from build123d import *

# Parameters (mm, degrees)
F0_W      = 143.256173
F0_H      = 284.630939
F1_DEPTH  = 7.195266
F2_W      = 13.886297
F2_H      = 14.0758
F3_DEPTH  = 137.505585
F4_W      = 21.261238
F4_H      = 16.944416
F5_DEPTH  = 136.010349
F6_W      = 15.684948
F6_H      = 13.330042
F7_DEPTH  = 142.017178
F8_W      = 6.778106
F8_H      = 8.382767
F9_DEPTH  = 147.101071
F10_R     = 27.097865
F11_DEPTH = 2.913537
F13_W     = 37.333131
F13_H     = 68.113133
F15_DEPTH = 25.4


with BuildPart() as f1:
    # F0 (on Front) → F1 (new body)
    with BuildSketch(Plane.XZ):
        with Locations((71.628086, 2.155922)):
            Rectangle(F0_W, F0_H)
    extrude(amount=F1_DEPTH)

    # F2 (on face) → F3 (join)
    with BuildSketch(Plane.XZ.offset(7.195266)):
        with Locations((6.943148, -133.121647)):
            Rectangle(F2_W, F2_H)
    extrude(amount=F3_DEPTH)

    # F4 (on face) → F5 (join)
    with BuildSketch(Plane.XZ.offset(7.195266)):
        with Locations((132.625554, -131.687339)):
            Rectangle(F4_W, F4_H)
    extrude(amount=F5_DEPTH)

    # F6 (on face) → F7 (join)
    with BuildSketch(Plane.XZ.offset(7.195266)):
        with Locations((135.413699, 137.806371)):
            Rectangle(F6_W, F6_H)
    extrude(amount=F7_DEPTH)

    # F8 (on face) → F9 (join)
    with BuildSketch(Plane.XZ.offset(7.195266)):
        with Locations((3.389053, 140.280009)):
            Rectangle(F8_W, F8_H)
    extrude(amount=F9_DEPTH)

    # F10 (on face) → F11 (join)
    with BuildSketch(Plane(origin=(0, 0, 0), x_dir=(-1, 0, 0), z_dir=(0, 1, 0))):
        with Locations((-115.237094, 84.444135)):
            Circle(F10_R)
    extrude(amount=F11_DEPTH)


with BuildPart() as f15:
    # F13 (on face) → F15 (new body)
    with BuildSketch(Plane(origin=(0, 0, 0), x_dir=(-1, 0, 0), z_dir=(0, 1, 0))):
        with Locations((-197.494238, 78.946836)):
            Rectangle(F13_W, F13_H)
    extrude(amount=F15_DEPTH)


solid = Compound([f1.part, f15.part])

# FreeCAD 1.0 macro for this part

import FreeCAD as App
import Part
import Sketcher
from FreeCAD import Vector
Q = App.Units.Quantity


def add_polygon(sketch, points):
    """Adds a closed chain of lines whose ends are joined by coincident constraints."""
    first, n = sketch.GeometryCount, len(points)
    for a, b in zip(points, points[1:] + points[:1]):
        sketch.addGeometry(Part.LineSegment(App.Vector(*a, 0), App.Vector(*b, 0)), False)
    for i in range(n):
        sketch.addConstraint(Sketcher.Constraint("Coincident", first + i, 2, first + (i + 1) % n, 1))

doc = App.newDocument("Part")
body = doc.addObject("PartDesign::Body", "Body")

# Sketch on XZ plane
sketch1 = doc.addObject("Sketcher::SketchObject", "Sketch")
body.addObject(sketch1)
sketch1.AttachmentSupport = (doc.XZ_Plane, [""])
sketch1.MapMode = "FlatFace"
add_polygon(sketch1, [(0, 144.471392), (0, -140.159548), (143.256172, -140.159548), (143.256172, 144.471392)])  # lines 0-3
sketch1.addConstraint([
    Sketcher.Constraint("Vertical", 0),
    Sketcher.Constraint("Horizontal", 1),
    Sketcher.Constraint("Vertical", 2),
    Sketcher.Constraint("Horizontal", 3),
    Sketcher.Constraint("PointOnObject", 0, 2, -2),
    Sketcher.Constraint("DistanceY", 0, 2, 0, 1, Q("284.630939 mm")),
    Sketcher.Constraint("DistanceX", 1, 1, 1, 2, Q("143.256173 mm")),
    Sketcher.Constraint("DistanceY", -1, 1, 2, 2, Q("144.471392 mm")),
])
pad1 = doc.addObject("PartDesign::Pad", "Pad")
body.addObject(pad1)
pad1.Profile = sketch1
pad1.Length = 7.195266

# Sketch on XZ plane
sketch2 = doc.addObject("Sketcher::SketchObject", "Sketch001")
body.addObject(sketch2)
sketch2.AttachmentSupport = (doc.XZ_Plane, [""])
sketch2.MapMode = "FlatFace"
sketch2.AttachmentOffset = App.Placement(Vector(0, 0, 7.195266), App.Rotation())
add_polygon(sketch2, [(0, -126.083747), (0, -140.159547), (13.886297, -140.159547), (13.886297, -126.083747)])  # lines 0-3
sketch2.addConstraint([
    Sketcher.Constraint("Vertical", 0),
    Sketcher.Constraint("Horizontal", 1),
    Sketcher.Constraint("Vertical", 2),
    Sketcher.Constraint("Horizontal", 3),
    Sketcher.Constraint("PointOnObject", 0, 2, -2),
    Sketcher.Constraint("DistanceY", 0, 2, 0, 1, Q("14.0758 mm")),
    Sketcher.Constraint("DistanceX", 1, 1, 1, 2, Q("13.886297 mm")),
    Sketcher.Constraint("DistanceY", 0, 2, -1, 1, Q("140.159547 mm")),
])
pad2 = doc.addObject("PartDesign::Pad", "Pad001")
body.addObject(pad2)
pad2.Profile = sketch2
pad2.Length = 137.505585

# Sketch on XZ plane
sketch3 = doc.addObject("Sketcher::SketchObject", "Sketch002")
body.addObject(sketch3)
sketch3.AttachmentSupport = (doc.XZ_Plane, [""])
sketch3.MapMode = "FlatFace"
sketch3.AttachmentOffset = App.Placement(Vector(0, 0, 7.195266), App.Rotation())
add_polygon(sketch3, [(121.994935, -123.215131), (121.994935, -140.159547), (143.256173, -140.159547), (143.256173, -123.215131)])  # lines 0-3
sketch3.addConstraint([
    Sketcher.Constraint("Vertical", 0),
    Sketcher.Constraint("Horizontal", 1),
    Sketcher.Constraint("Vertical", 2),
    Sketcher.Constraint("Horizontal", 3),
    Sketcher.Constraint("DistanceX", 1, 1, 1, 2, Q("21.261238 mm")),
    Sketcher.Constraint("DistanceY", 0, 2, 0, 1, Q("16.944416 mm")),
    Sketcher.Constraint("DistanceY", 2, 2, -1, 1, Q("123.215131 mm")),
    Sketcher.Constraint("DistanceX", -1, 1, 0, 2, Q("121.994935 mm")),
])
pad3 = doc.addObject("PartDesign::Pad", "Pad002")
body.addObject(pad3)
pad3.Profile = sketch3
pad3.Length = 136.010349

# Sketch on XZ plane
sketch4 = doc.addObject("Sketcher::SketchObject", "Sketch003")
body.addObject(sketch4)
sketch4.AttachmentSupport = (doc.XZ_Plane, [""])
sketch4.MapMode = "FlatFace"
sketch4.AttachmentOffset = App.Placement(Vector(0, 0, 7.195266), App.Rotation())
add_polygon(sketch4, [(127.571225, 144.471392), (127.571225, 131.14135), (143.256173, 131.14135), (143.256173, 144.471392)])  # lines 0-3
sketch4.addConstraint([
    Sketcher.Constraint("Vertical", 0),
    Sketcher.Constraint("Horizontal", 1),
    Sketcher.Constraint("Vertical", 2),
    Sketcher.Constraint("Horizontal", 3),
    Sketcher.Constraint("DistanceX", 1, 1, 1, 2, Q("15.684948 mm")),
    Sketcher.Constraint("DistanceY", 0, 2, 0, 1, Q("13.330042 mm")),
    Sketcher.Constraint("DistanceY", -1, 1, 0, 2, Q("131.14135 mm")),
    Sketcher.Constraint("DistanceX", -1, 1, 0, 2, Q("127.571225 mm")),
])
pad4 = doc.addObject("PartDesign::Pad", "Pad003")
body.addObject(pad4)
pad4.Profile = sketch4
pad4.Length = 142.017178

# Sketch on XZ plane
sketch5 = doc.addObject("Sketcher::SketchObject", "Sketch004")
body.addObject(sketch5)
sketch5.AttachmentSupport = (doc.XZ_Plane, [""])
sketch5.MapMode = "FlatFace"
sketch5.AttachmentOffset = App.Placement(Vector(0, 0, 7.195266), App.Rotation())
add_polygon(sketch5, [(0, 144.471393), (0, 136.088626), (6.778106, 136.088626), (6.778106, 144.471393)])  # lines 0-3
sketch5.addConstraint([
    Sketcher.Constraint("Vertical", 0),
    Sketcher.Constraint("Horizontal", 1),
    Sketcher.Constraint("Vertical", 2),
    Sketcher.Constraint("Horizontal", 3),
    Sketcher.Constraint("PointOnObject", 0, 2, -2),
    Sketcher.Constraint("DistanceX", 1, 1, 1, 2, Q("6.778106 mm")),
    Sketcher.Constraint("DistanceY", 0, 2, 0, 1, Q("8.382767 mm")),
    Sketcher.Constraint("DistanceY", -1, 1, 0, 2, Q("136.088626 mm")),
])
pad5 = doc.addObject("PartDesign::Pad", "Pad004")
body.addObject(pad5)
pad5.Profile = sketch5
pad5.Length = 147.101071

# Sketch on XZ plane
sketch6 = doc.addObject("Sketcher::SketchObject", "Sketch005")
body.addObject(sketch6)
sketch6.AttachmentSupport = (doc.XZ_Plane, [""])
sketch6.MapMode = "FlatFace"
sketch6.addGeometry(Part.Circle(Vector(115.237094, 84.444135, 0), Vector(0, 0, 1), 27.097865), False)
sketch6.addConstraint([
    Sketcher.Constraint("Diameter", 0, Q("54.19573 mm")),
    Sketcher.Constraint("DistanceX", -1, 1, 0, 3, Q("115.237094 mm")),
    Sketcher.Constraint("DistanceY", -1, 1, 0, 3, Q("84.444135 mm")),
])
pad6 = doc.addObject("PartDesign::Pad", "Pad005")
body.addObject(pad6)
pad6.Profile = sketch6
pad6.Length = 2.913537
pad6.Reversed = True
body2 = doc.addObject("PartDesign::Body", "Body001")

# Sketch on XZ plane
sketch7 = doc.addObject("Sketcher::SketchObject", "Sketch006")
body2.addObject(sketch7)
sketch7.AttachmentSupport = (doc.getObject("XZ_Plane001"), [""])
sketch7.MapMode = "FlatFace"
add_polygon(sketch7, [(216.160803, 113.003403), (216.160803, 44.89027), (178.827673, 44.89027), (178.827673, 113.003403)])  # lines 0-3
sketch7.addConstraint([
    Sketcher.Constraint("Vertical", 0),
    Sketcher.Constraint("Horizontal", 1),
    Sketcher.Constraint("Vertical", 2),
    Sketcher.Constraint("Horizontal", 3),
    Sketcher.Constraint("DistanceX", 1, 2, 1, 1, Q("37.333131 mm")),
    Sketcher.Constraint("DistanceY", 0, 2, 0, 1, Q("68.113133 mm")),
    Sketcher.Constraint("DistanceY", -1, 1, 0, 2, Q("44.89027 mm")),
    Sketcher.Constraint("DistanceX", -1, 1, 0, 2, Q("216.160803 mm")),
])
pad7 = doc.addObject("PartDesign::Pad", "Pad006")
body2.addObject(pad7)
pad7.Profile = sketch7
pad7.Length = Q("1 in")
pad7.Reversed = True

doc.recompute()
